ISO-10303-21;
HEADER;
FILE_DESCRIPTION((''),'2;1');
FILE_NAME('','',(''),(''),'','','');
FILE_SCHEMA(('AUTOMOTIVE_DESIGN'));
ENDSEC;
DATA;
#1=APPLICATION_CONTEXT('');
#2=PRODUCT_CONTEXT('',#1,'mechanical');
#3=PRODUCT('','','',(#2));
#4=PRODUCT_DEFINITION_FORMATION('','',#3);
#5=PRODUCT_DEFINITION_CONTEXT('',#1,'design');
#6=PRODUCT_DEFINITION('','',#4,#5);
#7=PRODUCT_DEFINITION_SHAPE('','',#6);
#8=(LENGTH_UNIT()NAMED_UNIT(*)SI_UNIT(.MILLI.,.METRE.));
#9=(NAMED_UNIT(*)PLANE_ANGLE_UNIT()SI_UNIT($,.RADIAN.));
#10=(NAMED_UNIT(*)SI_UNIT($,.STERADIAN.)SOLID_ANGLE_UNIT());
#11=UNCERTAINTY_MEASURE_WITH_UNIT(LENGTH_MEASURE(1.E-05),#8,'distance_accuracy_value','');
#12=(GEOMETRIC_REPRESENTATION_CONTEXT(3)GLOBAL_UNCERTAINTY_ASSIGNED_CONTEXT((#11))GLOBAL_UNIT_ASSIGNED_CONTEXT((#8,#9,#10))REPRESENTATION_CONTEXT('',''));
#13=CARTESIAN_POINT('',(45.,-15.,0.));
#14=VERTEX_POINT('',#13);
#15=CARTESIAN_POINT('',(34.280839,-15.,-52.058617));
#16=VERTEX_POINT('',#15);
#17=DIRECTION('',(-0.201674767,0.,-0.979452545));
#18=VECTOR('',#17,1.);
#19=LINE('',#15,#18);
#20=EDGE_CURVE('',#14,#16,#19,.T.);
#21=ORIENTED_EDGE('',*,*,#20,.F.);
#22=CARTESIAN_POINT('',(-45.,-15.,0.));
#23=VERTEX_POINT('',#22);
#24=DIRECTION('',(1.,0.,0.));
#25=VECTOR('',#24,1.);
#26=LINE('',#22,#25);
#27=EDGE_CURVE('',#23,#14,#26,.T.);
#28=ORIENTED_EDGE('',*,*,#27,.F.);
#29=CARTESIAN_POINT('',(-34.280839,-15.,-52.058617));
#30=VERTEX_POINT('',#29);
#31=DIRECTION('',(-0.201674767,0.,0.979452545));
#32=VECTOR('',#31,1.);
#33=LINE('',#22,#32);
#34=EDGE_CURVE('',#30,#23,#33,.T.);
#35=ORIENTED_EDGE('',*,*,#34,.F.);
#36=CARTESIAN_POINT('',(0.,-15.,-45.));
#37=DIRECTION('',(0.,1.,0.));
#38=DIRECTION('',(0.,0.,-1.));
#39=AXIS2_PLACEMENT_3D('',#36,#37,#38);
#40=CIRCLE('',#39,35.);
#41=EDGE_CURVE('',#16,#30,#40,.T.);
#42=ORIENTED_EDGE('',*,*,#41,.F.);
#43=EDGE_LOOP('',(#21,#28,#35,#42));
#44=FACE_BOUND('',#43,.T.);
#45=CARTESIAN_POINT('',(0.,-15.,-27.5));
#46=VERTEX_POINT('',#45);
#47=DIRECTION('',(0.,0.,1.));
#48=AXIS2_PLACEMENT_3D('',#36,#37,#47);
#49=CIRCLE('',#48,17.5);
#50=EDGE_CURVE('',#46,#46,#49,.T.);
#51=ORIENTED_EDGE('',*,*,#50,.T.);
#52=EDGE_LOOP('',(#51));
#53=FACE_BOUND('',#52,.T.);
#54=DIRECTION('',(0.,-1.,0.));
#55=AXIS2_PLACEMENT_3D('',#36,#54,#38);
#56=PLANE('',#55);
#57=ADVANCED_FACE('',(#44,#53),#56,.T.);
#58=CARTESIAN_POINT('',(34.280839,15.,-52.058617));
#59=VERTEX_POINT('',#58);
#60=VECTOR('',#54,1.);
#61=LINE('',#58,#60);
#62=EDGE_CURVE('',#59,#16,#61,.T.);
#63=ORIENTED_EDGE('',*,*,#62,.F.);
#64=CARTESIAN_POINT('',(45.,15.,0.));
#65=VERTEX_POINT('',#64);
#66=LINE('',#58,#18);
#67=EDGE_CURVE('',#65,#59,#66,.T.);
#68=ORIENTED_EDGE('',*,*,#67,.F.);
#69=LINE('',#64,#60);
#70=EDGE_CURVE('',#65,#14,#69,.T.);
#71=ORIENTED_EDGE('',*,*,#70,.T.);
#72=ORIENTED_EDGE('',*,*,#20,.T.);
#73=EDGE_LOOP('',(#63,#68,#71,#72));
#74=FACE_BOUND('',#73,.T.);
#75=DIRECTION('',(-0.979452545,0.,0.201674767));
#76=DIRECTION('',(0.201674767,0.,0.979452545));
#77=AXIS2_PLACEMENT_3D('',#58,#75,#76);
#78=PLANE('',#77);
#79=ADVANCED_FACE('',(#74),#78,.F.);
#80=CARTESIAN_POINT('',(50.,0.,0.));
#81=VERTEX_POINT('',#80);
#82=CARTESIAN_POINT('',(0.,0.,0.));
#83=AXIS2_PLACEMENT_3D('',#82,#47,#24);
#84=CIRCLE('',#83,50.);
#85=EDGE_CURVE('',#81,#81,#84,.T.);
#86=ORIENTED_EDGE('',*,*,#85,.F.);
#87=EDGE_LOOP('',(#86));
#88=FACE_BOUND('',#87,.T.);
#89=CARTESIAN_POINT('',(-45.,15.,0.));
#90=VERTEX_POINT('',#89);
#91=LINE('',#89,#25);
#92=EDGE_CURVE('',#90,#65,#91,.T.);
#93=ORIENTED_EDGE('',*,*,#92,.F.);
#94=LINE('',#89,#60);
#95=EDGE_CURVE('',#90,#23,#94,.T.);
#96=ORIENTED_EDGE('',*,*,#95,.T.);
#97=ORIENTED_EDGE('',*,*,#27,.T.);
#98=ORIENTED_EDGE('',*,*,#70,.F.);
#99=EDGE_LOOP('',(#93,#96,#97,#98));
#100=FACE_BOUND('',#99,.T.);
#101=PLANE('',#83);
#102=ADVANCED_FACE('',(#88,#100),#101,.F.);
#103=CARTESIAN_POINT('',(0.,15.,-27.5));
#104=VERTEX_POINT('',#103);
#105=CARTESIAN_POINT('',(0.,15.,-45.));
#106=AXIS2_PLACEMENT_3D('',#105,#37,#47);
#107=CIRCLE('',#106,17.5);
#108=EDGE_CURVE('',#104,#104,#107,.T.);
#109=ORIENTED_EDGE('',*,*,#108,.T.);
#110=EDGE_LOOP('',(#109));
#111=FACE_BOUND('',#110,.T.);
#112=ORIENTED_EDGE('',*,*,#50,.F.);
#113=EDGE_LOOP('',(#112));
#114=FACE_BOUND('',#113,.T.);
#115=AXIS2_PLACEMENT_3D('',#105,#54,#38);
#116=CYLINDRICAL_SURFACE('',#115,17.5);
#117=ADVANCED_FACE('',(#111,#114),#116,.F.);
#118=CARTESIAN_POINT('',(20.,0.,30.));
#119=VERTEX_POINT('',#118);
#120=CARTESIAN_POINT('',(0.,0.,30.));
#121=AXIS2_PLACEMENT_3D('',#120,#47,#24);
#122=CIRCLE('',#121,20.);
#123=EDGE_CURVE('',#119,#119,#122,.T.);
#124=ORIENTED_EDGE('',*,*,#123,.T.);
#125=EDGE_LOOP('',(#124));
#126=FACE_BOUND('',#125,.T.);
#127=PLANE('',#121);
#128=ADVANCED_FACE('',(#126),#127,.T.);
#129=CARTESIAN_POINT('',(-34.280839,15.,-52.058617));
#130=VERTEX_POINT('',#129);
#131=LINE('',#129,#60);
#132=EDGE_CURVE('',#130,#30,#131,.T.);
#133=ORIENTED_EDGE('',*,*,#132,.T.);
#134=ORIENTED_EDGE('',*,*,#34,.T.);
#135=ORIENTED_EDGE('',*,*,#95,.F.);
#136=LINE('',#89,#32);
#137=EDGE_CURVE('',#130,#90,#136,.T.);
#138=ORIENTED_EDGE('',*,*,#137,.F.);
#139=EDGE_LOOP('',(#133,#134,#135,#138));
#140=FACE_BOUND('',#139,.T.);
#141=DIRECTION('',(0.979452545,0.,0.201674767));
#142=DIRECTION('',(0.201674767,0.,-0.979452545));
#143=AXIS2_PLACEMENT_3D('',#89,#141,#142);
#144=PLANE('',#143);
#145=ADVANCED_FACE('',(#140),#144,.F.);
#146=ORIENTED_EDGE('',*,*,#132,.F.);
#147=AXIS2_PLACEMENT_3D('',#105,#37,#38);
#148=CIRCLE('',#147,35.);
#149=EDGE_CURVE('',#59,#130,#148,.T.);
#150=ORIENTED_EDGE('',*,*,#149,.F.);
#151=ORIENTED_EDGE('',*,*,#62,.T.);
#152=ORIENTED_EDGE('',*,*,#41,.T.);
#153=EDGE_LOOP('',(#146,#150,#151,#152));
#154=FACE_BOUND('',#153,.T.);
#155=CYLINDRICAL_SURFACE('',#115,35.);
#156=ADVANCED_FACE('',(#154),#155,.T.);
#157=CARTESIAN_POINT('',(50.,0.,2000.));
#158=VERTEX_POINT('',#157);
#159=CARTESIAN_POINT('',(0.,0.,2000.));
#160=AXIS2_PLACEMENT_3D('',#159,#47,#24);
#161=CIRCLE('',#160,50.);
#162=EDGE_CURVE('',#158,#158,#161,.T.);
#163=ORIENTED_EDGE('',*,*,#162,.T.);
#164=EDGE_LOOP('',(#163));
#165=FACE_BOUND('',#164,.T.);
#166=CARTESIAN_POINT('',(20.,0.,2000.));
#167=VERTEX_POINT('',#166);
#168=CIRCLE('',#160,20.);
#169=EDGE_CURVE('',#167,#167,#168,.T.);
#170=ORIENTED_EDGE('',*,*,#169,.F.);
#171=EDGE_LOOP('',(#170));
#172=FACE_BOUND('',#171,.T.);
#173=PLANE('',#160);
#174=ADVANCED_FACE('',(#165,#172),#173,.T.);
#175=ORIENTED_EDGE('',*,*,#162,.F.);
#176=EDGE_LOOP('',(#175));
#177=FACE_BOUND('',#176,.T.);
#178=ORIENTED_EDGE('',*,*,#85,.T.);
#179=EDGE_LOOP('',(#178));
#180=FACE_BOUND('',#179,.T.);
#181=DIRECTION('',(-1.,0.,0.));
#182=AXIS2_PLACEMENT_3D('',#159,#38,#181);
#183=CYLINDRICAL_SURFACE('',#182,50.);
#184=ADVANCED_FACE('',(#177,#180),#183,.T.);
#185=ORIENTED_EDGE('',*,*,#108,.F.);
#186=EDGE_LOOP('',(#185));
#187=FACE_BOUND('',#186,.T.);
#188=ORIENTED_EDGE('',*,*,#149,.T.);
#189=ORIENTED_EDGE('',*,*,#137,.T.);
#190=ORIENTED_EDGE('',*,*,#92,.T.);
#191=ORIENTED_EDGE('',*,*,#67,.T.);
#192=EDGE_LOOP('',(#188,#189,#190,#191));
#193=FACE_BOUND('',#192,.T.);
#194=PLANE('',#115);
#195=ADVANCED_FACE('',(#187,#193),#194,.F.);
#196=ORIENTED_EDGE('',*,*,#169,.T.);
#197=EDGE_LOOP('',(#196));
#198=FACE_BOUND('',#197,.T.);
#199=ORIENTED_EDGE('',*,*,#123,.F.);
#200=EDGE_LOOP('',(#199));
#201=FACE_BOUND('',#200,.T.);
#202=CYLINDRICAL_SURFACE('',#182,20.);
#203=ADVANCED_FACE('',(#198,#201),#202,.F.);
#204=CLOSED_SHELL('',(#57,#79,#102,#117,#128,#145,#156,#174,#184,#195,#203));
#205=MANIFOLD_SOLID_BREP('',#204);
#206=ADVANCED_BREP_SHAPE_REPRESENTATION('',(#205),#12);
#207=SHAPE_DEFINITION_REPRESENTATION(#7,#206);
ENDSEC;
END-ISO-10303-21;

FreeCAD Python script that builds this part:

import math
import FreeCAD as App
import Part
import Sketcher
from FreeCAD import Vector
Q = App.Units.Quantity


def faces_at(feature, points):
    """Names of the faces that lie closest to the given points."""
    faces = feature.Shape.Faces
    near = lambda p: min(range(len(faces)), key=lambda i: faces[i].distToShape(Part.Vertex(*p))[0])
    return sorted({f"Face{near(p) + 1}" for p in points})

doc = App.newDocument("Part")
body = doc.addObject("PartDesign::Body", "Body")

# Sketch on XY plane
sketch1 = body.newObject("Sketcher::SketchObject", "Sketch")
sketch1.AttachmentSupport = (doc.getObject("XY_Plane"), [""])
sketch1.MapMode = "FlatFace"
sketch1.addGeometry(Part.Circle(Vector(0, 0, 0), Vector(0, 0, 1), 50), False)
sketch1.addConstraint([
    Sketcher.Constraint("Coincident", 0, 3, -1, 1),
    Sketcher.Constraint("Diameter", 0, Q("100 mm")),
])
pad1 = body.newObject("PartDesign::Pad", "Pad")
pad1.Profile = sketch1
pad1.Length = 2000
doc.recompute()

thickness = body.newObject("PartDesign::Thickness", "Thickness")
thickness.Base = (pad1, faces_at(pad1, [(0, 0, 2000)]))
thickness.Value = 30
thickness.Reversed = True
thickness.Join = "Intersection"

# Sketch on XZ plane
sketch2 = body.newObject("Sketcher::SketchObject", "Sketch001")
sketch2.AttachmentSupport = (doc.getObject("XZ_Plane"), [""])
sketch2.MapMode = "FlatFace"
sketch2.addGeometry([
    Part.LineSegment(Vector(-34.280839, -52.058617, 0), Vector(-45, 0, 0)),  # 0
    Part.LineSegment(Vector(-45, 0, 0), Vector(45, 0, 0)),  # 1
    Part.LineSegment(Vector(45, 0, 0), Vector(34.280839, -52.058617, 0)),  # 2
    Part.ArcOfCircle(Part.Circle(Vector(0, -45, 0), Vector(0, 0, 1), 35), math.radians(-168.365088), math.radians(-11.634912)),  # 3
    Part.Circle(Vector(0, -45, 0), Vector(0, 0, 1), 17.5),  # 4
], False)
sketch2.addConstraint([
    Sketcher.Constraint("Coincident", 0, 2, 1, 1),
    Sketcher.Constraint("Coincident", 1, 2, 2, 1),
    Sketcher.Constraint("Tangent", 2, 2, 3, 2),
    Sketcher.Constraint("Tangent", 3, 1, 0, 1),
    Sketcher.Constraint("Horizontal", 1),
    Sketcher.Constraint("Coincident", 4, 3, 3, 3),
    Sketcher.Constraint("Symmetric", 0, 2, 1, 2, -1, 1),
    Sketcher.Constraint("PointOnObject", 3, 3, -2),
    Sketcher.Constraint("Diameter", 4, Q("35 mm")),
    Sketcher.Constraint("Radius", 3, Q("35 mm")),
    Sketcher.Constraint("DistanceX", 1, 1, 1, 2, Q("90 mm")),
    Sketcher.Constraint("DistanceY", 3, 3, -1, 1, Q("45 mm")),
])
pad2 = body.newObject("PartDesign::Pad", "Pad001")
pad2.Profile = sketch2
pad2.Length = 30
pad2.Midplane = True

doc.recompute()
